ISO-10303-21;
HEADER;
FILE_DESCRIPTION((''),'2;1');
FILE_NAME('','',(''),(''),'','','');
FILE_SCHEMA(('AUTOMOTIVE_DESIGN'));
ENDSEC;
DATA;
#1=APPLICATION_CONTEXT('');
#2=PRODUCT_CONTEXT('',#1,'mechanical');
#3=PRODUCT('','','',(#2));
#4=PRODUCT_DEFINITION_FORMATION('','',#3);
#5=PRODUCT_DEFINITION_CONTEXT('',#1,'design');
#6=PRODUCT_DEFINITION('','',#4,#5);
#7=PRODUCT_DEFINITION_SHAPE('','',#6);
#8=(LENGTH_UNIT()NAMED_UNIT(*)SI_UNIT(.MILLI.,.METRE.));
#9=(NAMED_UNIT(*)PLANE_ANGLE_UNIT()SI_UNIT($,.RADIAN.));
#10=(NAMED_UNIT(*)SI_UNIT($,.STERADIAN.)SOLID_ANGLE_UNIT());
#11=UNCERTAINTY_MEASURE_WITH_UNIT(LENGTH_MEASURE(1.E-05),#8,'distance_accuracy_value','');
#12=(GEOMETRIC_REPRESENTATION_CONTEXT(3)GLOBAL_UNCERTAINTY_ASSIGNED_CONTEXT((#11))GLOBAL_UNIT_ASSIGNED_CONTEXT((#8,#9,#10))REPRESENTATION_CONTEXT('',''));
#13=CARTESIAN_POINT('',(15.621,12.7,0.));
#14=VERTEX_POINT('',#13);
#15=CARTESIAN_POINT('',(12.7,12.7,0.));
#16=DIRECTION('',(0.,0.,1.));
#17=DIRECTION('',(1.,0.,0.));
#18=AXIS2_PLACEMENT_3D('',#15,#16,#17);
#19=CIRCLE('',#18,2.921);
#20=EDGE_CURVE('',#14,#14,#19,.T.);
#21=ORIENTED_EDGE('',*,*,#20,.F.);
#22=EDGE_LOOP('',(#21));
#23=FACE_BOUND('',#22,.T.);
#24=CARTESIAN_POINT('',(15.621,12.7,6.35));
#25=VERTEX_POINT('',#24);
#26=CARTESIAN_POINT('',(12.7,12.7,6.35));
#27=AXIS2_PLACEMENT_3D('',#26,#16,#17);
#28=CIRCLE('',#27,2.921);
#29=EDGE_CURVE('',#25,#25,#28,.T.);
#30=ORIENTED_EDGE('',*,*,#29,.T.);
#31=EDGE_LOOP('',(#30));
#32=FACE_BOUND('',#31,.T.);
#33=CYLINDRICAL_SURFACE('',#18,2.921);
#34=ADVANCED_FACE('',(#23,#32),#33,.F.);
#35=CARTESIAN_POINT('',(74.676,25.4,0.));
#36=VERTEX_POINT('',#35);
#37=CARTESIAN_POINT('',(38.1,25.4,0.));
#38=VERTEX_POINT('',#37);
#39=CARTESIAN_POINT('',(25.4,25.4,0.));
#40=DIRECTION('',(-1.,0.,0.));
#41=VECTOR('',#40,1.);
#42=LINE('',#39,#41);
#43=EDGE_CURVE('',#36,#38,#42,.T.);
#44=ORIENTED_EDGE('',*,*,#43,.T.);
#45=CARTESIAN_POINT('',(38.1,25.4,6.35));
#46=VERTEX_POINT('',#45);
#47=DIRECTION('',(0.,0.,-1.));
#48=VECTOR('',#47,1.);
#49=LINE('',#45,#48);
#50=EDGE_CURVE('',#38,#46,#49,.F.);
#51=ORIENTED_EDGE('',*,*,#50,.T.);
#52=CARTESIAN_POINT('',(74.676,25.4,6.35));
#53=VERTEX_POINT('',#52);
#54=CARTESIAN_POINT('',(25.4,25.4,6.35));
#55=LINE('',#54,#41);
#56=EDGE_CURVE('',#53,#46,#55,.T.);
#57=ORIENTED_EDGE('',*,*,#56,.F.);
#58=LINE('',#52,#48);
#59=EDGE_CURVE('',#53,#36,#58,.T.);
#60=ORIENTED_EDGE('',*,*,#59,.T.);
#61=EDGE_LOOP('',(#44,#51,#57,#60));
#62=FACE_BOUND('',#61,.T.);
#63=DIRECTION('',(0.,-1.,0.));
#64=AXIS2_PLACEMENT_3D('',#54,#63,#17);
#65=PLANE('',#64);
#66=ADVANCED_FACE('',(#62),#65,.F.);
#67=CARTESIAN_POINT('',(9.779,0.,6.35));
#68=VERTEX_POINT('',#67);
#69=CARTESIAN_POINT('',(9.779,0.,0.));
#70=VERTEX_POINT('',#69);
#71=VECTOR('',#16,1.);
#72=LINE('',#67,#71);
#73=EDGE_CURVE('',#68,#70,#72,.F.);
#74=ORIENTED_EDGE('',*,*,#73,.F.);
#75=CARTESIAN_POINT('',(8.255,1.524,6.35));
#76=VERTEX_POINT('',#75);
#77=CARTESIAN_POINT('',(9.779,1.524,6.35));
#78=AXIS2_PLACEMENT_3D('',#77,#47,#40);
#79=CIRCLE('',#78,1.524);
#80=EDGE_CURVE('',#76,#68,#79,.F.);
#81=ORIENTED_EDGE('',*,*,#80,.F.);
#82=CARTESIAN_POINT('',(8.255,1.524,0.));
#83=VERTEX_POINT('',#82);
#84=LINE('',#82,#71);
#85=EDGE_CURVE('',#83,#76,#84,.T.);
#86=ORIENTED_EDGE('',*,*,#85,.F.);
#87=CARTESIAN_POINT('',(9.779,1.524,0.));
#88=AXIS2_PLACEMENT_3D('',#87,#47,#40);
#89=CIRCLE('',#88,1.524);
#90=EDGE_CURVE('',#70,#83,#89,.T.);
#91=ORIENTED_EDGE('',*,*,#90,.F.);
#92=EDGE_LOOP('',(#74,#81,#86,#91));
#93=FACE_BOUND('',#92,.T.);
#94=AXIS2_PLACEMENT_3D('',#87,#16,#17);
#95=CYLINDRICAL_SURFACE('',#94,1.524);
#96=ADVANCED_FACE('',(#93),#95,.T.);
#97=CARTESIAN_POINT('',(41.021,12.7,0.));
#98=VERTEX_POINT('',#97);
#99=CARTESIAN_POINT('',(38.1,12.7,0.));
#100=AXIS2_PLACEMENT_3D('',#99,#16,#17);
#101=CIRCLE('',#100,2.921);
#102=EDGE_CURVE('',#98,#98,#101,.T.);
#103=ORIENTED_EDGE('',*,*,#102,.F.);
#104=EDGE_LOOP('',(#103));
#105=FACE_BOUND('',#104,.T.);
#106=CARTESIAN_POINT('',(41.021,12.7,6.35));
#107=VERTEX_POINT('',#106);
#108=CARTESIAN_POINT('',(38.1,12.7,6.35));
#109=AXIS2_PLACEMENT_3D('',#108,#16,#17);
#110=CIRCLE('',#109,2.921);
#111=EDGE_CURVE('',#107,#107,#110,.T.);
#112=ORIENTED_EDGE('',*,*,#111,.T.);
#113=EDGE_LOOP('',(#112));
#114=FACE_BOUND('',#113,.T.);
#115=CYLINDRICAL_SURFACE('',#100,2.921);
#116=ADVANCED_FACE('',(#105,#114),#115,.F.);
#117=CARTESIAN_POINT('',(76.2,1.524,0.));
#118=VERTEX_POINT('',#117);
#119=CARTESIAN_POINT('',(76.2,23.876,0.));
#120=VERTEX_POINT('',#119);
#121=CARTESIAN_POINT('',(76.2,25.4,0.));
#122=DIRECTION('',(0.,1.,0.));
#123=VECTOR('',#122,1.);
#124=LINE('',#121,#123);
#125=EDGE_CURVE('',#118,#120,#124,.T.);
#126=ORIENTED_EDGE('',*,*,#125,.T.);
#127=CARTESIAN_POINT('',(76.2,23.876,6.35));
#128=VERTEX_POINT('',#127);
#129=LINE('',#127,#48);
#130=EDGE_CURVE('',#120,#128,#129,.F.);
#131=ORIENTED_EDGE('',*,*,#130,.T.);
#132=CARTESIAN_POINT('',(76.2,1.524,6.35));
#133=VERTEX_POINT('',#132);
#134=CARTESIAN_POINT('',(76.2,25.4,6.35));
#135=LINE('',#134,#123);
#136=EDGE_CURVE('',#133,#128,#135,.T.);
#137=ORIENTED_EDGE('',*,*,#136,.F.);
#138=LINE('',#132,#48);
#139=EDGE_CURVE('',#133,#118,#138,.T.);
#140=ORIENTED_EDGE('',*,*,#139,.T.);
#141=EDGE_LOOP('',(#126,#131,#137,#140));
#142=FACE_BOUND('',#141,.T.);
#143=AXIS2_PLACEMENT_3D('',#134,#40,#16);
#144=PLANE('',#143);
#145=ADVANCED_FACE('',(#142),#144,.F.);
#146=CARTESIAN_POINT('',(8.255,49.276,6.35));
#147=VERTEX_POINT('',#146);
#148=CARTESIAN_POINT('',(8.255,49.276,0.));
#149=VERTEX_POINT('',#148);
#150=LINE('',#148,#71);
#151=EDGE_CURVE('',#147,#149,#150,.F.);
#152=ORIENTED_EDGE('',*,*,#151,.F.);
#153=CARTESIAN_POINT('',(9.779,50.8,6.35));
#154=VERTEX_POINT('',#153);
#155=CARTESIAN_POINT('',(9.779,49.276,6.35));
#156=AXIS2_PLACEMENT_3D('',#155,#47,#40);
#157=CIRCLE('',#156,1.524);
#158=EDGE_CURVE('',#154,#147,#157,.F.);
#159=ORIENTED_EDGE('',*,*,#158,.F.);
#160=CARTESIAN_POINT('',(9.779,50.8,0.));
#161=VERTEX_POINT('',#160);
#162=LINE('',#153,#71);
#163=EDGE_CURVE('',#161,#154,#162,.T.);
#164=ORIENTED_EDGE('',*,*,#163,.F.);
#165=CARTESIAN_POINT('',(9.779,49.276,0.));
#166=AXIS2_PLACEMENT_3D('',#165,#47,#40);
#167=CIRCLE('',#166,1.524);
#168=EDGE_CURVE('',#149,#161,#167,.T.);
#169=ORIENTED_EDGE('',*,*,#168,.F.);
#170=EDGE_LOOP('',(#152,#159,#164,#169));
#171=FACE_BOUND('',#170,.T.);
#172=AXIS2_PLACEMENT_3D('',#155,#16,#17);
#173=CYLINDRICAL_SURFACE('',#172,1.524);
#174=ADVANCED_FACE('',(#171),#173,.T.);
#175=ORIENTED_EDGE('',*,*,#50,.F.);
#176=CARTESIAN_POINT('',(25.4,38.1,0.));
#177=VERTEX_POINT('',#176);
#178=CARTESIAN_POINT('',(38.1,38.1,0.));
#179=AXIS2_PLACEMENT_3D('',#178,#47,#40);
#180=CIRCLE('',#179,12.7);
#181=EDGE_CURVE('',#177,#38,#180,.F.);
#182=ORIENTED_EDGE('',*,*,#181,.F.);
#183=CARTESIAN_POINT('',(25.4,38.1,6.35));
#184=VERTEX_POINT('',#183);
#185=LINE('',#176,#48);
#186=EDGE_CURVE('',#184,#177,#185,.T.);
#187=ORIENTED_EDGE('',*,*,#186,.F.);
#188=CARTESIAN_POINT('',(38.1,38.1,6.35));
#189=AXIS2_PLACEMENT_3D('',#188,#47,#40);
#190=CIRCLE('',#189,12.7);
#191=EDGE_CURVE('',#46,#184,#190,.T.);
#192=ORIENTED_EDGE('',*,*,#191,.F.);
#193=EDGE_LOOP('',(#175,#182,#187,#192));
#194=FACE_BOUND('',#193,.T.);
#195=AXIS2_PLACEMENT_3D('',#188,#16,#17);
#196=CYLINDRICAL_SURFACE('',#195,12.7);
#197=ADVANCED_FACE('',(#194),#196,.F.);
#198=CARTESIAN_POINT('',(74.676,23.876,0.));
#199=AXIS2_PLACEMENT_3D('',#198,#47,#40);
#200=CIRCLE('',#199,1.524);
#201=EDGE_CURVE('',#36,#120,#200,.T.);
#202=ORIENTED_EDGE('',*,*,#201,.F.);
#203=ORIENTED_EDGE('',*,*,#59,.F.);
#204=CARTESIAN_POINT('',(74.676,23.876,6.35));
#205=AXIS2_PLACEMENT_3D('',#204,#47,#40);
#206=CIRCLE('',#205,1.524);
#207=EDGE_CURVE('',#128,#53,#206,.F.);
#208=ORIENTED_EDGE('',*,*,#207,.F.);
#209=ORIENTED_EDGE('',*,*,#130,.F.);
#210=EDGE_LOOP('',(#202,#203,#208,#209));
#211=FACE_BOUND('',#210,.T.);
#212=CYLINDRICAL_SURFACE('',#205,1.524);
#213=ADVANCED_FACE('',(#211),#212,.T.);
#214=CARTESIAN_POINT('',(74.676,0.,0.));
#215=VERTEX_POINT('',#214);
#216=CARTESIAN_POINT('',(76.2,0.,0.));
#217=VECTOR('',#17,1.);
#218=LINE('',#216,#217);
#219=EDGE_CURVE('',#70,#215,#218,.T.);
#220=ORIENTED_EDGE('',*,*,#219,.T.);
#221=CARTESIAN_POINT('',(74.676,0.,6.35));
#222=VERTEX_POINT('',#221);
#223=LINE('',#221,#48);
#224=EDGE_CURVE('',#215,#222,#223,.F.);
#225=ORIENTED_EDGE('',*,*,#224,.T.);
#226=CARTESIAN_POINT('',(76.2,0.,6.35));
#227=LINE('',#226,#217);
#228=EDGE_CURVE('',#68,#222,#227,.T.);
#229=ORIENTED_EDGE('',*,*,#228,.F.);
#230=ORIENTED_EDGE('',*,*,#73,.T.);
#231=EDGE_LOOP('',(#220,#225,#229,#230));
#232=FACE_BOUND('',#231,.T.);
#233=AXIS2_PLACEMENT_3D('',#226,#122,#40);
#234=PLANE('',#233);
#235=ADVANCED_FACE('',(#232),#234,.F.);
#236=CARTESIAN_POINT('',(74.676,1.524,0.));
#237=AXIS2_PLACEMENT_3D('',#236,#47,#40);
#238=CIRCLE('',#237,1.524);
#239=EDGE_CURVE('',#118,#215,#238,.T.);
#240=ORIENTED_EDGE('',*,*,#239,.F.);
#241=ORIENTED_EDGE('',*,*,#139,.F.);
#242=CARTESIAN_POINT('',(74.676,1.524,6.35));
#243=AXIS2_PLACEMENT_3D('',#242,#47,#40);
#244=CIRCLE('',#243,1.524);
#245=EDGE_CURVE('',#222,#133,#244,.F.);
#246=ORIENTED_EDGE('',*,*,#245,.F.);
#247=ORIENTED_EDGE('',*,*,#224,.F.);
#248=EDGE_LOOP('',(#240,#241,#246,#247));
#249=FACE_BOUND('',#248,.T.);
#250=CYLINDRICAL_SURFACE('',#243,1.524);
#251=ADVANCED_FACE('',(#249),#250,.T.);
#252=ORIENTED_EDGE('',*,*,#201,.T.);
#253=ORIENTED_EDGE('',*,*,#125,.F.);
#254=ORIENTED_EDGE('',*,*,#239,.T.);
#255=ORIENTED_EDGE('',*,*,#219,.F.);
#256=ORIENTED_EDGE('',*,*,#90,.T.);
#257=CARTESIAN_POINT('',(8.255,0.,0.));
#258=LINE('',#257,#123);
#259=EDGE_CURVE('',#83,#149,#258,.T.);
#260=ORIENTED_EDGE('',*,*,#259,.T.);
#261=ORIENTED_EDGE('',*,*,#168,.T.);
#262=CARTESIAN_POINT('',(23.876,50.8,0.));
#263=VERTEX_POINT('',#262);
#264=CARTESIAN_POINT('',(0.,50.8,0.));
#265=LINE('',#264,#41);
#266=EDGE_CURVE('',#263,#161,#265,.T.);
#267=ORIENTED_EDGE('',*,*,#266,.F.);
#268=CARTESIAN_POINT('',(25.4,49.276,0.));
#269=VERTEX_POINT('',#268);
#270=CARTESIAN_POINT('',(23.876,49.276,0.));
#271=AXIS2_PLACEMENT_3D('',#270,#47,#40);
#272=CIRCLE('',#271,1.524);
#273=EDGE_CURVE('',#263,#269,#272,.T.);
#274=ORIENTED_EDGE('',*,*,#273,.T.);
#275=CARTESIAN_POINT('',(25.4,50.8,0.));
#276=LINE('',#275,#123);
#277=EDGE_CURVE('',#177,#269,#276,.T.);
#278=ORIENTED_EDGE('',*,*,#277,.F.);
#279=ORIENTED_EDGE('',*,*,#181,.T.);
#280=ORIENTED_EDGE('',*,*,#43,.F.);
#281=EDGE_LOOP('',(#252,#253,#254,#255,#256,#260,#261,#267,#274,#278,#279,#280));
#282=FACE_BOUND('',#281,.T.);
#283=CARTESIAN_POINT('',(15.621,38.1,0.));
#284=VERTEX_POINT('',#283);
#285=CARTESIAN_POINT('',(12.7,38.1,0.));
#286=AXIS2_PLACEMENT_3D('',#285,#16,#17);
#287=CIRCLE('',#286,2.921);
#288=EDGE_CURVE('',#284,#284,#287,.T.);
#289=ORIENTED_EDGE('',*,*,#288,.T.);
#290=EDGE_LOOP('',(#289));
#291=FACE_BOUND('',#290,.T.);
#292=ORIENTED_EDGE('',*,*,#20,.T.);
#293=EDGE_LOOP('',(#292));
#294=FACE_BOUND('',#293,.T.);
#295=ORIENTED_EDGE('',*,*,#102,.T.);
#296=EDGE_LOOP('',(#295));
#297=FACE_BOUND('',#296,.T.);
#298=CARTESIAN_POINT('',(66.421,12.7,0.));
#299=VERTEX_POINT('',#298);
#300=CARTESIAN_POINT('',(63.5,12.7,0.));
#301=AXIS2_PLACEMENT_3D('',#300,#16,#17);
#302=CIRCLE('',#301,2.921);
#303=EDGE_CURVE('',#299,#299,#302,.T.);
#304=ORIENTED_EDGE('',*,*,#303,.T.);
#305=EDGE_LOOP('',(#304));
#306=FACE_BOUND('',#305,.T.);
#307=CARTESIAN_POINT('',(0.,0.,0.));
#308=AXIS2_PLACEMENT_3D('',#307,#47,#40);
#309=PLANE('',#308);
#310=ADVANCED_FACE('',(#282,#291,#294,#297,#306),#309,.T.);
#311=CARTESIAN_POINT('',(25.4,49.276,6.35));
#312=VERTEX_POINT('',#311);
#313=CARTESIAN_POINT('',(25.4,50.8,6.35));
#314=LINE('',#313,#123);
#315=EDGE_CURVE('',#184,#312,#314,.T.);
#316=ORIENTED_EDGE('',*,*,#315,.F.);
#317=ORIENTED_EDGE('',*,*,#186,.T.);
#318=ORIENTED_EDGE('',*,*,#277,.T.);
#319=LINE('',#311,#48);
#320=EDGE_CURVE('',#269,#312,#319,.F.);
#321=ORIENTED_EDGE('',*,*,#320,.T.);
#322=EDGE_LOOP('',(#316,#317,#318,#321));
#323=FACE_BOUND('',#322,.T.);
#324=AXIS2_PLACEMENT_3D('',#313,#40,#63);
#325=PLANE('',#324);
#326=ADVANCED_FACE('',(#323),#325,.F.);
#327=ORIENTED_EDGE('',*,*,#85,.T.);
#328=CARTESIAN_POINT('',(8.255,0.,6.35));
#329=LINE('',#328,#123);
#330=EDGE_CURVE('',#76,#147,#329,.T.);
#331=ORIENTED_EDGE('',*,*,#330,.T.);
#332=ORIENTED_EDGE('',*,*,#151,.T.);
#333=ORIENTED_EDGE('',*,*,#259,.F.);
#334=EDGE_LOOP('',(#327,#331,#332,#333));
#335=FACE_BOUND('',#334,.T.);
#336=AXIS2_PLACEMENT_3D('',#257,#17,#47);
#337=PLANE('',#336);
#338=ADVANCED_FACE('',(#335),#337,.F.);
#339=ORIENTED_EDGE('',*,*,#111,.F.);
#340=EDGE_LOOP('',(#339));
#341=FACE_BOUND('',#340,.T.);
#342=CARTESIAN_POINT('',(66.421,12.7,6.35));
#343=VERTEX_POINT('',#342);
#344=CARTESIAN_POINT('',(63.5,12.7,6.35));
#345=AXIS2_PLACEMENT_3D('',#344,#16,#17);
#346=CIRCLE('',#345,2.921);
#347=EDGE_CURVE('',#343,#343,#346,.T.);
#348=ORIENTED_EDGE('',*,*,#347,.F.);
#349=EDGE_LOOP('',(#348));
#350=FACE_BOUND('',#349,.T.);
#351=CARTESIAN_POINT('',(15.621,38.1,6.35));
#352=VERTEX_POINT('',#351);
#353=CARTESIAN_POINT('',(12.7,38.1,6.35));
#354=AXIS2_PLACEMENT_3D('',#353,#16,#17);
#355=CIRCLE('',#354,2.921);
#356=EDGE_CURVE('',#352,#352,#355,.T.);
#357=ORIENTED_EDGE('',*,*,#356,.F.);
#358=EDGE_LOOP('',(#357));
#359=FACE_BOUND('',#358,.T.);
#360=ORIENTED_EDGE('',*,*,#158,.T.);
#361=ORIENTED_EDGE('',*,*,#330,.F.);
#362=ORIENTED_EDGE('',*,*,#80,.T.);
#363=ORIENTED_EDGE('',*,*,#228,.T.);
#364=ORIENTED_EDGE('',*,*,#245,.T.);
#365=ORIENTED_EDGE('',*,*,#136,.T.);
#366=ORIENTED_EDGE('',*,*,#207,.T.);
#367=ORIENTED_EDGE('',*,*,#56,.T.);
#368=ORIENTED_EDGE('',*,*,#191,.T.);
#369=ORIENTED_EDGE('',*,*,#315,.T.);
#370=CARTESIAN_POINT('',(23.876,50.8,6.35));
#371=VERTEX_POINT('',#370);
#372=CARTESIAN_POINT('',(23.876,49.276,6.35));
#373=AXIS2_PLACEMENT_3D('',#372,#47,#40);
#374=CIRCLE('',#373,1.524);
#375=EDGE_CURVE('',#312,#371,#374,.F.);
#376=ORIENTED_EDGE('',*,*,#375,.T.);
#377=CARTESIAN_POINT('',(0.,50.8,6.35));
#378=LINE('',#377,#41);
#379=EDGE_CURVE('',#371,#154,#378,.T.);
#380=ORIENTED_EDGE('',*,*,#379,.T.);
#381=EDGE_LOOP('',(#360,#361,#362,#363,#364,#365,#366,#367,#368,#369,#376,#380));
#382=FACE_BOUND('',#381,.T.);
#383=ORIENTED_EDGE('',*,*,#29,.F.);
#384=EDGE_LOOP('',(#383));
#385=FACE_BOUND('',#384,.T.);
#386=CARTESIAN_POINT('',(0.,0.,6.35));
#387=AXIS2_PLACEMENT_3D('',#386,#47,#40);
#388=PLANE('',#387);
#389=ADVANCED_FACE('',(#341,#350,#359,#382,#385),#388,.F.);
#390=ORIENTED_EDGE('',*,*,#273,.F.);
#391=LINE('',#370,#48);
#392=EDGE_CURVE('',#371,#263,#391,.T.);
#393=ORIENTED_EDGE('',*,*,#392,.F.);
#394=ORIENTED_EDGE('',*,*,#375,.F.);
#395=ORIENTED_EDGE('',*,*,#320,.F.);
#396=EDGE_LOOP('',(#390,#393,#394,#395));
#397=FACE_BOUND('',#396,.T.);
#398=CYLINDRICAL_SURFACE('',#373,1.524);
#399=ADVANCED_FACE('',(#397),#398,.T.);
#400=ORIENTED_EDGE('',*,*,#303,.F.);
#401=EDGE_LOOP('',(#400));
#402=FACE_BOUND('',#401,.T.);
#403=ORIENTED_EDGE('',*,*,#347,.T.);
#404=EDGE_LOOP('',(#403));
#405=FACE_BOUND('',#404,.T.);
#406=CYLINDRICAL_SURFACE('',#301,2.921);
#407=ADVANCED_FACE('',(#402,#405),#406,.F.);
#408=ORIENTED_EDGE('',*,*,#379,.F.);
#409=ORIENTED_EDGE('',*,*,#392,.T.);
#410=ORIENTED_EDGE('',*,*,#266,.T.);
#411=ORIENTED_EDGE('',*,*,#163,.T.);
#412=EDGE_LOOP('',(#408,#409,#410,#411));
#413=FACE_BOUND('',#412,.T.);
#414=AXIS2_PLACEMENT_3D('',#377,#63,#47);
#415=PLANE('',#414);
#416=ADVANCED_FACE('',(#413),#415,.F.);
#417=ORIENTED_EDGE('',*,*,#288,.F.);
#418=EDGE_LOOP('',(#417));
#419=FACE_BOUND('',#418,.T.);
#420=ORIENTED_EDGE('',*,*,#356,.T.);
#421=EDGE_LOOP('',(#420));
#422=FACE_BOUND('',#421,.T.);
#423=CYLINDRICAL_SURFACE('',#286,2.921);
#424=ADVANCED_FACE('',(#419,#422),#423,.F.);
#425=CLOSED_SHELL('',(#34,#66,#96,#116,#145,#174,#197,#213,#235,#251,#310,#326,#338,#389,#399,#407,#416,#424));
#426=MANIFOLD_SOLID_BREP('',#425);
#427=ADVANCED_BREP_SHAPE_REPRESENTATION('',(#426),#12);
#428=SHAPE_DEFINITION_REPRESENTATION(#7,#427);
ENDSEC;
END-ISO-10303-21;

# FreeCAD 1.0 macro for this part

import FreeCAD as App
import Part
import Sketcher

V = App.Vector
Q = App.Units.Quantity


def edges_at(feature, points):
    """Names of the edges that pass closest to the given points."""
    edges = feature.Shape.Edges
    near = lambda p: min(range(len(edges)), key=lambda i: edges[i].distToShape(Part.Vertex(*p))[0])
    return sorted({f"Edge{near(p) + 1}" for p in points})


def add_polygon(sketch, points):
    """Adds a closed chain of lines whose ends are joined by coincident constraints."""
    first, n = sketch.GeometryCount, len(points)
    for a, b in zip(points, points[1:] + points[:1]):
        sketch.addGeometry(Part.LineSegment(App.Vector(*a, 0), App.Vector(*b, 0)), False)
    for i in range(n):
        sketch.addConstraint(Sketcher.Constraint("Coincident", first + i, 2, first + (i + 1) % n, 1))

doc = App.newDocument("Part")
params = doc.addObject("Spreadsheet::Sheet", "Params")
for row, (alias, value) in enumerate([
    ("sketch1_width", "3 in"),
    ("pad1_length", "0.25 in"),
    ("sketch2_diameter", "0.23 in"),
    ("sketch3_height", "2 in"),
    ("sketch3_width", "0.325 in"),
    ("fillet_radius", "0.5 in"),
    ("fillet2_radius", "0.06 in"),
], start=1):
    params.set(f"A{row}", alias)
    params.set(f"B{row}", "=" + value)
    params.setAlias(f"B{row}", alias)

body = doc.addObject("PartDesign::Body", "Body")

# Sketch on XY plane
sketch1 = body.newObject("Sketcher::SketchObject", "Sketch")
sketch1.AttachmentSupport = (doc.getObject("XY_Plane"), [""])
sketch1.MapMode = "FlatFace"
add_polygon(sketch1, [(0, 51), (0, 0), (76, 0), (76, 25), (25, 25), (25, 51)])  # lines 0-5
sketch1.addConstraint(Sketcher.Constraint("Vertical", 0))
sketch1.addConstraint(Sketcher.Constraint("Horizontal", 1))
sketch1.addConstraint(Sketcher.Constraint("Vertical", 2))
sketch1.addConstraint(Sketcher.Constraint("Horizontal", 3))
sketch1.addConstraint(Sketcher.Constraint("Vertical", 4))
sketch1.addConstraint(Sketcher.Constraint("Horizontal", 5))
sketch1.addConstraint(Sketcher.Constraint("Coincident", 0, 2, -1, 1))
sketch1.addConstraint(Sketcher.Constraint("Equal", 3, 0))
sketch1.addConstraint(Sketcher.Constraint("Equal", 5, 2))
sketch1.addConstraint(Sketcher.Constraint("Equal", 2, 4))
sketch1.addConstraint(Sketcher.Constraint("DistanceX", 1, 1, 1, 2, Q("3 in")))
sketch1.setExpression("Constraints[16]", "Params.sketch1_width")
pad1 = body.newObject("PartDesign::Pad", "Pad")
pad1.Profile = sketch1
pad1.setExpression("Length", "Params.pad1_length")

# Sketch on XY plane
sketch2 = body.newObject("Sketcher::SketchObject", "Sketch001")
sketch2.AttachmentSupport = (doc.getObject("XY_Plane"), [""])
sketch2.MapMode = "FlatFace"
sketch2.AttachmentOffset = App.Placement(V(0, 0, 0.25 * 25.4), App.Rotation())
sketch2.addGeometry(Part.Circle(V(12.7, 38.1, 0), V(0, 0, 1), 2.9), False)
sketch2.addGeometry(Part.Circle(V(12.7, 12.7, 0), V(0, 0, 1), 2.9), False)
sketch2.addGeometry(Part.Circle(V(38.1, 12.7, 0), V(0, 0, 1), 2.9), False)
sketch2.addGeometry(Part.Circle(V(63.5, 12.7, 0), V(0, 0, 1), 2.9), False)
sketch2.addConstraint(Sketcher.Constraint("Equal", 0, 1))
sketch2.addConstraint(Sketcher.Constraint("Equal", 1, 2))
sketch2.addConstraint(Sketcher.Constraint("Equal", 2, 3))
sketch2.addConstraint(Sketcher.Constraint("Horizontal", 1, 3, 2, 3))
sketch2.addConstraint(Sketcher.Constraint("Horizontal", 2, 3, 3, 3))
sketch2.addConstraint(Sketcher.Constraint("Vertical", 0, 3, 1, 3))
sketch2.addConstraint(Sketcher.Constraint("Diameter", 0, Q("0.23 in")))
sketch2.addConstraint(Sketcher.Constraint("DistanceY", 1, 3, 0, 3, Q("1 in")))
sketch2.addConstraint(Sketcher.Constraint("DistanceX", 1, 3, 2, 3, Q("1 in")))
sketch2.addConstraint(Sketcher.Constraint("DistanceX", 2, 3, 3, 3, Q("1 in")))
sketch2.addConstraint(Sketcher.Constraint("DistanceX", -1, 1, 0, 3, Q("0.5 in")))
sketch2.addConstraint(Sketcher.Constraint("DistanceY", -1, 1, 0, 3, Q("1.5 in")))
sketch2.setExpression("Constraints[6]", "Params.sketch2_diameter")
pocket1 = body.newObject("PartDesign::Pocket", "Pocket")
pocket1.Profile = sketch2
pocket1.Type = "ThroughAll"

# Sketch on XY plane
sketch3 = body.newObject("Sketcher::SketchObject", "Sketch002")
sketch3.AttachmentSupport = (doc.getObject("XY_Plane"), [""])
sketch3.MapMode = "FlatFace"
sketch3.AttachmentOffset = App.Placement(V(0, 0, 0.25 * 25.4), App.Rotation())
add_polygon(sketch3, [(0, 51), (0, 0), (8, 0), (8, 51)])  # lines 0-3
sketch3.addConstraint(Sketcher.Constraint("Vertical", 0))
sketch3.addConstraint(Sketcher.Constraint("Horizontal", 1))
sketch3.addConstraint(Sketcher.Constraint("Vertical", 2))
sketch3.addConstraint(Sketcher.Constraint("Horizontal", 3))
sketch3.addConstraint(Sketcher.Constraint("Coincident", 0, 2, -1, 1))
sketch3.addConstraint(Sketcher.Constraint("DistanceY", 0, 2, 0, 1, Q("2 in")))
sketch3.addConstraint(Sketcher.Constraint("DistanceX", 1, 1, 1, 2, Q("0.325 in")))
sketch3.setExpression("Constraints[9]", "Params.sketch3_height")
sketch3.setExpression("Constraints[10]", "Params.sketch3_width")
pocket2 = body.newObject("PartDesign::Pocket", "Pocket001")
pocket2.Profile = sketch3
pocket2.Type = "ThroughAll"
doc.recompute()

fillet = body.newObject("PartDesign::Fillet", "Fillet")
fillet.Base = (pocket2, edges_at(pocket2, [(25.4, 25.4, 3.175)]))
fillet.setExpression("Radius", "Params.fillet_radius")
doc.recompute()

fillet2 = body.newObject("PartDesign::Fillet", "Fillet001")
fillet2.Base = (fillet, edges_at(fillet, [
    (25.4, 50.8, 3.175),
    (76.2, 25.4, 3.175),
    (76.2, 0, 3.175),
    (8.255, 50.8, 3.175),
    (8.255, 0, 3.175),
]))
fillet2.setExpression("Radius", "Params.fillet2_radius")

doc.recompute()
